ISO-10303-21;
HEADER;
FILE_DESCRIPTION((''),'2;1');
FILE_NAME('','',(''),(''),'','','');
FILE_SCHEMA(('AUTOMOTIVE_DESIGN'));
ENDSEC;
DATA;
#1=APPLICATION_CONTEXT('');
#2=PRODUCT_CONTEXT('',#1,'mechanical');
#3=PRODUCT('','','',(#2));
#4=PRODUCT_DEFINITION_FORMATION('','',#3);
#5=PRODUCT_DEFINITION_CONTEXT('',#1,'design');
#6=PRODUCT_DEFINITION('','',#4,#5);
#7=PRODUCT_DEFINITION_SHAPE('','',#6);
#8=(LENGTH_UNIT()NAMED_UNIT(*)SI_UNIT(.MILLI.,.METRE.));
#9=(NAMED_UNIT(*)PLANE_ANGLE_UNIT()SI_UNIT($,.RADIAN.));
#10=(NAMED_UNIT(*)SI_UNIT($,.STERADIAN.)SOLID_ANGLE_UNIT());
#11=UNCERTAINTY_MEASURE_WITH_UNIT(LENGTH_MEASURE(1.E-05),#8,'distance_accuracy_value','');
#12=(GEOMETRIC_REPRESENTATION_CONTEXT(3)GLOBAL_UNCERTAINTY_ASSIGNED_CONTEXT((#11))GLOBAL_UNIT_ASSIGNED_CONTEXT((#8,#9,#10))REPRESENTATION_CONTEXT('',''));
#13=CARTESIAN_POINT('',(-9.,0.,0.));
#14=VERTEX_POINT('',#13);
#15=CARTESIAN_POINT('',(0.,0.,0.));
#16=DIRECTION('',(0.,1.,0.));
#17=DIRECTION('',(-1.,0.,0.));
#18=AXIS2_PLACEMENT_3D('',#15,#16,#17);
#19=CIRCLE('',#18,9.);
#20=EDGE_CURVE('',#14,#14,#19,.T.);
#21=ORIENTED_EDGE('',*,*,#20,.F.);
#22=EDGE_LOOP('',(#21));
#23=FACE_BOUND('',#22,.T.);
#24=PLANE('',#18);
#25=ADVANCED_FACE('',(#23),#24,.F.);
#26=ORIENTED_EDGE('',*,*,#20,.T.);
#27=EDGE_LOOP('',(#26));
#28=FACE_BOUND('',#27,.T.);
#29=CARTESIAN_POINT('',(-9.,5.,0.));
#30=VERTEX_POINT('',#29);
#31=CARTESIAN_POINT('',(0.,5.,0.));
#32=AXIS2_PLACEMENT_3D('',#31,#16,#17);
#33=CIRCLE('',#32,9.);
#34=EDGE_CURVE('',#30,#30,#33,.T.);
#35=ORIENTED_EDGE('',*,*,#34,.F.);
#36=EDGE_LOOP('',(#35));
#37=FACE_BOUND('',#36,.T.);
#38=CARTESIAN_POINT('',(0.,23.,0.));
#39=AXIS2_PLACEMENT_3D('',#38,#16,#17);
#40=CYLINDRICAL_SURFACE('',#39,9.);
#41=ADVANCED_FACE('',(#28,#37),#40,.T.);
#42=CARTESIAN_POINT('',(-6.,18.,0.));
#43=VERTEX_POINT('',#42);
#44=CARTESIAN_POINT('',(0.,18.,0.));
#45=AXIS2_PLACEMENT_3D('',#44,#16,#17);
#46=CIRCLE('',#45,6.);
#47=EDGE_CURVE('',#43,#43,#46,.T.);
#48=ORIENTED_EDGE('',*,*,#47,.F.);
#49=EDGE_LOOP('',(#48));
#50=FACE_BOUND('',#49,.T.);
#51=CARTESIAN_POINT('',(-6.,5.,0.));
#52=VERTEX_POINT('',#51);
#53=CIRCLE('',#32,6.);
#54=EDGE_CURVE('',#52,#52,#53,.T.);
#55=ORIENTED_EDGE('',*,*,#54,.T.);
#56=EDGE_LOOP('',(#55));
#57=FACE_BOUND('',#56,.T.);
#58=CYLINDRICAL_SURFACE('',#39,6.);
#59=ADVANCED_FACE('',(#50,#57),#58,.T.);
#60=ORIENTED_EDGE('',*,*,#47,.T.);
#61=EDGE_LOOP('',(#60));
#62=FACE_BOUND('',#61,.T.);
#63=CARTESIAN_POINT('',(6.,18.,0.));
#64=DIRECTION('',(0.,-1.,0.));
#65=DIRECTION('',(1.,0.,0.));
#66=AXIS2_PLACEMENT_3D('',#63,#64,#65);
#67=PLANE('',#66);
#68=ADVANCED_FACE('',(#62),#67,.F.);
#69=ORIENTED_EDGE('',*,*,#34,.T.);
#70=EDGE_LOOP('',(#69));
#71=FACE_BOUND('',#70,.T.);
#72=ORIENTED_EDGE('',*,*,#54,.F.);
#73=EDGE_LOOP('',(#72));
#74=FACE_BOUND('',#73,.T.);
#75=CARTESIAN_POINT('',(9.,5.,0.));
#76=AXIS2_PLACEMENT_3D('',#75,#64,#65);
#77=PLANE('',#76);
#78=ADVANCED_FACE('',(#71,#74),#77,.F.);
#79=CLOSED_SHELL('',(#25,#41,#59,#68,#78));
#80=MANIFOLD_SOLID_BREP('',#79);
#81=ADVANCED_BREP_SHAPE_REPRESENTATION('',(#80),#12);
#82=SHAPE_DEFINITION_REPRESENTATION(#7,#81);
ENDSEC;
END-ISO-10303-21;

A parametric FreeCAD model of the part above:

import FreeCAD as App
import Part
import Sketcher
from FreeCAD import Vector

doc = App.newDocument("Part")
body = doc.addObject("PartDesign::Body", "Body")

sketch1 = body.newObject("Sketcher::SketchObject", "Sketch")
sketch1.AttachmentSupport = (doc.getObject("XY_Plane"), [""])
sketch1.MapMode = "FlatFace"
sketch1.addGeometry(Part.LineSegment(Vector(0, 0, 0), Vector(9, 0, 0)), False)
sketch1.addGeometry(Part.LineSegment(Vector(9, 0, 0), Vector(9, 5, 0)), False)
sketch1.addGeometry(Part.LineSegment(Vector(9, 5, 0), Vector(6, 5, 0)), False)
sketch1.addGeometry(Part.LineSegment(Vector(6, 5, 0), Vector(6, 18, 0)), False)
sketch1.addGeometry(Part.LineSegment(Vector(6, 18, 0), Vector(0, 18, 0)), False)
sketch1.addGeometry(Part.LineSegment(Vector(0, 18, 0), Vector(0, 0, 0)), False)
sketch1.addConstraint(Sketcher.Constraint("Coincident", 0, 2, 1, 1))
sketch1.addConstraint(Sketcher.Constraint("Coincident", 1, 2, 2, 1))
sketch1.addConstraint(Sketcher.Constraint("Coincident", 2, 2, 3, 1))
sketch1.addConstraint(Sketcher.Constraint("Coincident", 3, 2, 4, 1))
sketch1.addConstraint(Sketcher.Constraint("Coincident", 4, 2, 5, 1))
sketch1.addConstraint(Sketcher.Constraint("Coincident", 5, 2, 0, 1))
sketch1.addConstraint(Sketcher.Constraint("Horizontal", 0))
sketch1.addConstraint(Sketcher.Constraint("Vertical", 1))
sketch1.addConstraint(Sketcher.Constraint("Horizontal", 2))
sketch1.addConstraint(Sketcher.Constraint("Vertical", 3))
sketch1.addConstraint(Sketcher.Constraint("Horizontal", 4))
sketch1.addConstraint(Sketcher.Constraint("Vertical", 5))
sketch1.addConstraint(Sketcher.Constraint("Coincident", 5, 2, -1, 1))
sketch1.addConstraint(Sketcher.Constraint("DistanceX", 0, 1, 0, 2, 9.0))
sketch1.addConstraint(Sketcher.Constraint("DistanceX", 2, 2, 2, 1, 3.0))
sketch1.addConstraint(Sketcher.Constraint("DistanceY", 1, 1, 1, 2, 5.0))
sketch1.addConstraint(Sketcher.Constraint("DistanceY", 3, 1, 3, 2, 13.0))
revolution = body.newObject("PartDesign::Revolution", "Revolution")
revolution.Profile = sketch1
revolution.ReferenceAxis = (sketch1, ["V_Axis"])
revolution.Angle = 360

doc.recompute()
